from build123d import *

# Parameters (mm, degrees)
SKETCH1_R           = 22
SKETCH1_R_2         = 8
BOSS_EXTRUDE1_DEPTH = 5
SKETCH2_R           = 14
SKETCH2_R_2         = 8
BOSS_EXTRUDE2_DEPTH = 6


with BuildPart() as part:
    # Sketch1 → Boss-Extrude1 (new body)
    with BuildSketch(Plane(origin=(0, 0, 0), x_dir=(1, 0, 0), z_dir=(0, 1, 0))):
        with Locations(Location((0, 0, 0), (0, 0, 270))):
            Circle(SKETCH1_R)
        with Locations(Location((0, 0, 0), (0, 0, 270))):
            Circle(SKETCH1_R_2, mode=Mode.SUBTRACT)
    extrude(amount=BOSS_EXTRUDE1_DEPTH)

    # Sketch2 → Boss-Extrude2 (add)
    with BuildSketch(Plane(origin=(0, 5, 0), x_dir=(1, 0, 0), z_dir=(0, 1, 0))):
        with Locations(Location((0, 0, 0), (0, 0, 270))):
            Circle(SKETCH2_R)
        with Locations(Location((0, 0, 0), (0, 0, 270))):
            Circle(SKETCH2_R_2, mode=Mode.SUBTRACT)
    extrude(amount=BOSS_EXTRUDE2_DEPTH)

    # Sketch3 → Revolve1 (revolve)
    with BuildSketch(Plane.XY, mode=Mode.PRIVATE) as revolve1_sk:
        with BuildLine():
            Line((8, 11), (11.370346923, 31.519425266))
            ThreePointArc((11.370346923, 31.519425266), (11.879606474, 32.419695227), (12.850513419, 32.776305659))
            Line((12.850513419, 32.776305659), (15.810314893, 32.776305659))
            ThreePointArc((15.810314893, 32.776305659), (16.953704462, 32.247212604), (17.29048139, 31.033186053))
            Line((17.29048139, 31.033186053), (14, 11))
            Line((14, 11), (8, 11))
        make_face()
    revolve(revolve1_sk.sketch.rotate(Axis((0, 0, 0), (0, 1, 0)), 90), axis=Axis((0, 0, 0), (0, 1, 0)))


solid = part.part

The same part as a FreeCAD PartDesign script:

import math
import FreeCAD as App
import Part
import Sketcher

doc = App.newDocument("Part")
body = doc.addObject("PartDesign::Body", "Body")

# Sketch on XZ plane
sketch1 = body.newObject("Sketcher::SketchObject", "Sketch")
sketch1.AttachmentSupport = (doc.getObject("XZ_Plane"), [""])
sketch1.MapMode = "FlatFace"
sketch1.addGeometry([
    Part.Circle(App.Vector(0, 0, 0), App.Vector(0, 0, 1), 22),
    Part.Circle(App.Vector(0, 0, 0), App.Vector(0, 0, 1), 8),
], False)
sketch1.addConstraint([
    Sketcher.Constraint("Coincident", 0, 3, -1, 1),
    Sketcher.Constraint("Coincident", 1, 3, -1, 1),
    Sketcher.Constraint("Diameter", 0, 44.0),
    Sketcher.Constraint("Diameter", 1, 16.0),
])
pad1 = body.newObject("PartDesign::Pad", "Pad")
pad1.Profile = sketch1
pad1.Length = 5
pad1.Reversed = True

# Sketch on XZ plane
sketch2 = body.newObject("Sketcher::SketchObject", "Sketch001")
sketch2.AttachmentSupport = (doc.getObject("XZ_Plane"), [""])
sketch2.MapMode = "FlatFace"
sketch2.AttachmentOffset = App.Placement(App.Vector(0, 0, -5), App.Rotation())
sketch2.addGeometry([
    Part.Circle(App.Vector(0, 0, 0), App.Vector(0, 0, 1), 14),
    Part.Circle(App.Vector(0, 0, 0), App.Vector(0, 0, 1), 8),
], False)
sketch2.addConstraint([
    Sketcher.Constraint("Coincident", 0, 3, -1, 1),
    Sketcher.Constraint("Coincident", 1, 3, -1, 1),
    Sketcher.Constraint("Diameter", 0, 28.0),
    Sketcher.Constraint("Diameter", 1, 16.0),
])
pad2 = body.newObject("PartDesign::Pad", "Pad001")
pad2.Profile = sketch2
pad2.Length = 6
pad2.Reversed = True

# Sketch on XY plane
sketch3 = body.newObject("Sketcher::SketchObject", "Sketch002")
sketch3.AttachmentSupport = (doc.getObject("XY_Plane"), [""])
sketch3.MapMode = "FlatFace"
sketch3.addGeometry([
    Part.LineSegment(App.Vector(11.370347, 31.519425, 0), App.Vector(8, 11, 0)),  # 0
    Part.LineSegment(App.Vector(8, 11, 0), App.Vector(14, 11, 0)),  # 1
    Part.LineSegment(App.Vector(14, 11, 0), App.Vector(17.290481, 31.033186, 0)),  # 2
    Part.ArcOfCircle(Part.Circle(App.Vector(15.810315, 31.276306, 0), App.Vector(0, 0, 1), 1.5), math.radians(-9.327632), math.radians(90)),  # 3
    Part.LineSegment(App.Vector(15.810315, 32.776306, 0), App.Vector(12.850513, 32.776306, 0)),  # 4
    Part.ArcOfCircle(Part.Circle(App.Vector(12.850513, 31.276306, 0), App.Vector(0, 0, 1), 1.5), math.radians(90), math.radians(170.672368)),  # 5
], False)
sketch3.addConstraint([
    Sketcher.Constraint("Coincident", 0, 2, 1, 1),
    Sketcher.Constraint("Coincident", 1, 2, 2, 1),
    Sketcher.Constraint("Tangent", 2, 2, 3, 1),
    Sketcher.Constraint("Tangent", 3, 2, 4, 1),
    Sketcher.Constraint("Tangent", 4, 2, 5, 1),
    Sketcher.Constraint("Tangent", 5, 2, 0, 1),
    Sketcher.Constraint("Horizontal", 1),
    Sketcher.Constraint("Horizontal", 4),
    Sketcher.Constraint("Equal", 3, 5),
    Sketcher.Constraint("Parallel", 0, 2),
    Sketcher.Constraint("Radius", 3, 1.5),
    Sketcher.Constraint("DistanceX", 1, 1, 1, 2, 6.0),
    Sketcher.Constraint("DistanceX", -1, 1, 0, 2, 8.0),
    Sketcher.Constraint("DistanceY", -1, 1, 0, 2, 11.0),
    Sketcher.Constraint("DistanceX", 4, 2, 4, 1, 2.959801),
    Sketcher.Constraint("Distance", 2, 20.301621),
])
revolution = body.newObject("PartDesign::Revolution", "Revolution")
revolution.Profile = sketch3
revolution.ReferenceAxis = (sketch3, ["V_Axis"])
revolution.Angle = 360

doc.recompute()
